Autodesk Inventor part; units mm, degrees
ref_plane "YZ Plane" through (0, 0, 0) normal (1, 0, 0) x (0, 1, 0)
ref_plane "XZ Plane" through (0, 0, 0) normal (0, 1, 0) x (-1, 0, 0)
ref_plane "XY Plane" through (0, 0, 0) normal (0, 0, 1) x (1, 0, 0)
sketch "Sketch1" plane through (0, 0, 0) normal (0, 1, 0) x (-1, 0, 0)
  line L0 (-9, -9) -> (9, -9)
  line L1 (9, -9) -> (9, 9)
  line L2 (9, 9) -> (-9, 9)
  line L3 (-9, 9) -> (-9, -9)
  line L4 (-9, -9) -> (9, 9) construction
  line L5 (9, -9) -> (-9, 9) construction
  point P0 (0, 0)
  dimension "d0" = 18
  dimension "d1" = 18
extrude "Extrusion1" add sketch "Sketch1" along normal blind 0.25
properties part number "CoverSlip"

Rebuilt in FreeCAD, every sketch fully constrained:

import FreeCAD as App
import Part
import Sketcher

V = App.Vector
Q = App.Units.Quantity

doc = App.newDocument("Part")
body = doc.addObject("PartDesign::Body", "Body")

sketch1 = doc.addObject("Sketcher::SketchObject", "Sketch")
body.addObject(sketch1)
sketch1.AttachmentSupport = (doc.XZ_Plane, [""])
sketch1.MapMode = "FlatFace"
sketch1.addGeometry([
    Part.LineSegment(V(9, 9, 0), V(9, -9, 0)),
    Part.LineSegment(V(9, -9, 0), V(-9, -9, 0)),
    Part.LineSegment(V(-9, -9, 0), V(-9, 9, 0)),
    Part.LineSegment(V(-9, 9, 0), V(9, 9, 0)),
], False)
sketch1.addConstraint([
    Sketcher.Constraint("Coincident", 0, 2, 1, 1),
    Sketcher.Constraint("Coincident", 1, 2, 2, 1),
    Sketcher.Constraint("Coincident", 2, 2, 3, 1),
    Sketcher.Constraint("Coincident", 3, 2, 0, 1),
    Sketcher.Constraint("Vertical", 0),
    Sketcher.Constraint("Horizontal", 1),
    Sketcher.Constraint("Vertical", 2),
    Sketcher.Constraint("Horizontal", 3),
    Sketcher.Constraint("Symmetric", 0, 2, 2, 2, -1, 1),
    Sketcher.Constraint("Equal", 3, 0),
    Sketcher.Constraint("DistanceX", 1, 2, 1, 1, Q("18 mm")),
])
pad1 = doc.addObject("PartDesign::Pad", "Pad")
body.addObject(pad1)
pad1.Profile = sketch1
pad1.Length = 0.25
pad1.Reversed = True

doc.recompute()
